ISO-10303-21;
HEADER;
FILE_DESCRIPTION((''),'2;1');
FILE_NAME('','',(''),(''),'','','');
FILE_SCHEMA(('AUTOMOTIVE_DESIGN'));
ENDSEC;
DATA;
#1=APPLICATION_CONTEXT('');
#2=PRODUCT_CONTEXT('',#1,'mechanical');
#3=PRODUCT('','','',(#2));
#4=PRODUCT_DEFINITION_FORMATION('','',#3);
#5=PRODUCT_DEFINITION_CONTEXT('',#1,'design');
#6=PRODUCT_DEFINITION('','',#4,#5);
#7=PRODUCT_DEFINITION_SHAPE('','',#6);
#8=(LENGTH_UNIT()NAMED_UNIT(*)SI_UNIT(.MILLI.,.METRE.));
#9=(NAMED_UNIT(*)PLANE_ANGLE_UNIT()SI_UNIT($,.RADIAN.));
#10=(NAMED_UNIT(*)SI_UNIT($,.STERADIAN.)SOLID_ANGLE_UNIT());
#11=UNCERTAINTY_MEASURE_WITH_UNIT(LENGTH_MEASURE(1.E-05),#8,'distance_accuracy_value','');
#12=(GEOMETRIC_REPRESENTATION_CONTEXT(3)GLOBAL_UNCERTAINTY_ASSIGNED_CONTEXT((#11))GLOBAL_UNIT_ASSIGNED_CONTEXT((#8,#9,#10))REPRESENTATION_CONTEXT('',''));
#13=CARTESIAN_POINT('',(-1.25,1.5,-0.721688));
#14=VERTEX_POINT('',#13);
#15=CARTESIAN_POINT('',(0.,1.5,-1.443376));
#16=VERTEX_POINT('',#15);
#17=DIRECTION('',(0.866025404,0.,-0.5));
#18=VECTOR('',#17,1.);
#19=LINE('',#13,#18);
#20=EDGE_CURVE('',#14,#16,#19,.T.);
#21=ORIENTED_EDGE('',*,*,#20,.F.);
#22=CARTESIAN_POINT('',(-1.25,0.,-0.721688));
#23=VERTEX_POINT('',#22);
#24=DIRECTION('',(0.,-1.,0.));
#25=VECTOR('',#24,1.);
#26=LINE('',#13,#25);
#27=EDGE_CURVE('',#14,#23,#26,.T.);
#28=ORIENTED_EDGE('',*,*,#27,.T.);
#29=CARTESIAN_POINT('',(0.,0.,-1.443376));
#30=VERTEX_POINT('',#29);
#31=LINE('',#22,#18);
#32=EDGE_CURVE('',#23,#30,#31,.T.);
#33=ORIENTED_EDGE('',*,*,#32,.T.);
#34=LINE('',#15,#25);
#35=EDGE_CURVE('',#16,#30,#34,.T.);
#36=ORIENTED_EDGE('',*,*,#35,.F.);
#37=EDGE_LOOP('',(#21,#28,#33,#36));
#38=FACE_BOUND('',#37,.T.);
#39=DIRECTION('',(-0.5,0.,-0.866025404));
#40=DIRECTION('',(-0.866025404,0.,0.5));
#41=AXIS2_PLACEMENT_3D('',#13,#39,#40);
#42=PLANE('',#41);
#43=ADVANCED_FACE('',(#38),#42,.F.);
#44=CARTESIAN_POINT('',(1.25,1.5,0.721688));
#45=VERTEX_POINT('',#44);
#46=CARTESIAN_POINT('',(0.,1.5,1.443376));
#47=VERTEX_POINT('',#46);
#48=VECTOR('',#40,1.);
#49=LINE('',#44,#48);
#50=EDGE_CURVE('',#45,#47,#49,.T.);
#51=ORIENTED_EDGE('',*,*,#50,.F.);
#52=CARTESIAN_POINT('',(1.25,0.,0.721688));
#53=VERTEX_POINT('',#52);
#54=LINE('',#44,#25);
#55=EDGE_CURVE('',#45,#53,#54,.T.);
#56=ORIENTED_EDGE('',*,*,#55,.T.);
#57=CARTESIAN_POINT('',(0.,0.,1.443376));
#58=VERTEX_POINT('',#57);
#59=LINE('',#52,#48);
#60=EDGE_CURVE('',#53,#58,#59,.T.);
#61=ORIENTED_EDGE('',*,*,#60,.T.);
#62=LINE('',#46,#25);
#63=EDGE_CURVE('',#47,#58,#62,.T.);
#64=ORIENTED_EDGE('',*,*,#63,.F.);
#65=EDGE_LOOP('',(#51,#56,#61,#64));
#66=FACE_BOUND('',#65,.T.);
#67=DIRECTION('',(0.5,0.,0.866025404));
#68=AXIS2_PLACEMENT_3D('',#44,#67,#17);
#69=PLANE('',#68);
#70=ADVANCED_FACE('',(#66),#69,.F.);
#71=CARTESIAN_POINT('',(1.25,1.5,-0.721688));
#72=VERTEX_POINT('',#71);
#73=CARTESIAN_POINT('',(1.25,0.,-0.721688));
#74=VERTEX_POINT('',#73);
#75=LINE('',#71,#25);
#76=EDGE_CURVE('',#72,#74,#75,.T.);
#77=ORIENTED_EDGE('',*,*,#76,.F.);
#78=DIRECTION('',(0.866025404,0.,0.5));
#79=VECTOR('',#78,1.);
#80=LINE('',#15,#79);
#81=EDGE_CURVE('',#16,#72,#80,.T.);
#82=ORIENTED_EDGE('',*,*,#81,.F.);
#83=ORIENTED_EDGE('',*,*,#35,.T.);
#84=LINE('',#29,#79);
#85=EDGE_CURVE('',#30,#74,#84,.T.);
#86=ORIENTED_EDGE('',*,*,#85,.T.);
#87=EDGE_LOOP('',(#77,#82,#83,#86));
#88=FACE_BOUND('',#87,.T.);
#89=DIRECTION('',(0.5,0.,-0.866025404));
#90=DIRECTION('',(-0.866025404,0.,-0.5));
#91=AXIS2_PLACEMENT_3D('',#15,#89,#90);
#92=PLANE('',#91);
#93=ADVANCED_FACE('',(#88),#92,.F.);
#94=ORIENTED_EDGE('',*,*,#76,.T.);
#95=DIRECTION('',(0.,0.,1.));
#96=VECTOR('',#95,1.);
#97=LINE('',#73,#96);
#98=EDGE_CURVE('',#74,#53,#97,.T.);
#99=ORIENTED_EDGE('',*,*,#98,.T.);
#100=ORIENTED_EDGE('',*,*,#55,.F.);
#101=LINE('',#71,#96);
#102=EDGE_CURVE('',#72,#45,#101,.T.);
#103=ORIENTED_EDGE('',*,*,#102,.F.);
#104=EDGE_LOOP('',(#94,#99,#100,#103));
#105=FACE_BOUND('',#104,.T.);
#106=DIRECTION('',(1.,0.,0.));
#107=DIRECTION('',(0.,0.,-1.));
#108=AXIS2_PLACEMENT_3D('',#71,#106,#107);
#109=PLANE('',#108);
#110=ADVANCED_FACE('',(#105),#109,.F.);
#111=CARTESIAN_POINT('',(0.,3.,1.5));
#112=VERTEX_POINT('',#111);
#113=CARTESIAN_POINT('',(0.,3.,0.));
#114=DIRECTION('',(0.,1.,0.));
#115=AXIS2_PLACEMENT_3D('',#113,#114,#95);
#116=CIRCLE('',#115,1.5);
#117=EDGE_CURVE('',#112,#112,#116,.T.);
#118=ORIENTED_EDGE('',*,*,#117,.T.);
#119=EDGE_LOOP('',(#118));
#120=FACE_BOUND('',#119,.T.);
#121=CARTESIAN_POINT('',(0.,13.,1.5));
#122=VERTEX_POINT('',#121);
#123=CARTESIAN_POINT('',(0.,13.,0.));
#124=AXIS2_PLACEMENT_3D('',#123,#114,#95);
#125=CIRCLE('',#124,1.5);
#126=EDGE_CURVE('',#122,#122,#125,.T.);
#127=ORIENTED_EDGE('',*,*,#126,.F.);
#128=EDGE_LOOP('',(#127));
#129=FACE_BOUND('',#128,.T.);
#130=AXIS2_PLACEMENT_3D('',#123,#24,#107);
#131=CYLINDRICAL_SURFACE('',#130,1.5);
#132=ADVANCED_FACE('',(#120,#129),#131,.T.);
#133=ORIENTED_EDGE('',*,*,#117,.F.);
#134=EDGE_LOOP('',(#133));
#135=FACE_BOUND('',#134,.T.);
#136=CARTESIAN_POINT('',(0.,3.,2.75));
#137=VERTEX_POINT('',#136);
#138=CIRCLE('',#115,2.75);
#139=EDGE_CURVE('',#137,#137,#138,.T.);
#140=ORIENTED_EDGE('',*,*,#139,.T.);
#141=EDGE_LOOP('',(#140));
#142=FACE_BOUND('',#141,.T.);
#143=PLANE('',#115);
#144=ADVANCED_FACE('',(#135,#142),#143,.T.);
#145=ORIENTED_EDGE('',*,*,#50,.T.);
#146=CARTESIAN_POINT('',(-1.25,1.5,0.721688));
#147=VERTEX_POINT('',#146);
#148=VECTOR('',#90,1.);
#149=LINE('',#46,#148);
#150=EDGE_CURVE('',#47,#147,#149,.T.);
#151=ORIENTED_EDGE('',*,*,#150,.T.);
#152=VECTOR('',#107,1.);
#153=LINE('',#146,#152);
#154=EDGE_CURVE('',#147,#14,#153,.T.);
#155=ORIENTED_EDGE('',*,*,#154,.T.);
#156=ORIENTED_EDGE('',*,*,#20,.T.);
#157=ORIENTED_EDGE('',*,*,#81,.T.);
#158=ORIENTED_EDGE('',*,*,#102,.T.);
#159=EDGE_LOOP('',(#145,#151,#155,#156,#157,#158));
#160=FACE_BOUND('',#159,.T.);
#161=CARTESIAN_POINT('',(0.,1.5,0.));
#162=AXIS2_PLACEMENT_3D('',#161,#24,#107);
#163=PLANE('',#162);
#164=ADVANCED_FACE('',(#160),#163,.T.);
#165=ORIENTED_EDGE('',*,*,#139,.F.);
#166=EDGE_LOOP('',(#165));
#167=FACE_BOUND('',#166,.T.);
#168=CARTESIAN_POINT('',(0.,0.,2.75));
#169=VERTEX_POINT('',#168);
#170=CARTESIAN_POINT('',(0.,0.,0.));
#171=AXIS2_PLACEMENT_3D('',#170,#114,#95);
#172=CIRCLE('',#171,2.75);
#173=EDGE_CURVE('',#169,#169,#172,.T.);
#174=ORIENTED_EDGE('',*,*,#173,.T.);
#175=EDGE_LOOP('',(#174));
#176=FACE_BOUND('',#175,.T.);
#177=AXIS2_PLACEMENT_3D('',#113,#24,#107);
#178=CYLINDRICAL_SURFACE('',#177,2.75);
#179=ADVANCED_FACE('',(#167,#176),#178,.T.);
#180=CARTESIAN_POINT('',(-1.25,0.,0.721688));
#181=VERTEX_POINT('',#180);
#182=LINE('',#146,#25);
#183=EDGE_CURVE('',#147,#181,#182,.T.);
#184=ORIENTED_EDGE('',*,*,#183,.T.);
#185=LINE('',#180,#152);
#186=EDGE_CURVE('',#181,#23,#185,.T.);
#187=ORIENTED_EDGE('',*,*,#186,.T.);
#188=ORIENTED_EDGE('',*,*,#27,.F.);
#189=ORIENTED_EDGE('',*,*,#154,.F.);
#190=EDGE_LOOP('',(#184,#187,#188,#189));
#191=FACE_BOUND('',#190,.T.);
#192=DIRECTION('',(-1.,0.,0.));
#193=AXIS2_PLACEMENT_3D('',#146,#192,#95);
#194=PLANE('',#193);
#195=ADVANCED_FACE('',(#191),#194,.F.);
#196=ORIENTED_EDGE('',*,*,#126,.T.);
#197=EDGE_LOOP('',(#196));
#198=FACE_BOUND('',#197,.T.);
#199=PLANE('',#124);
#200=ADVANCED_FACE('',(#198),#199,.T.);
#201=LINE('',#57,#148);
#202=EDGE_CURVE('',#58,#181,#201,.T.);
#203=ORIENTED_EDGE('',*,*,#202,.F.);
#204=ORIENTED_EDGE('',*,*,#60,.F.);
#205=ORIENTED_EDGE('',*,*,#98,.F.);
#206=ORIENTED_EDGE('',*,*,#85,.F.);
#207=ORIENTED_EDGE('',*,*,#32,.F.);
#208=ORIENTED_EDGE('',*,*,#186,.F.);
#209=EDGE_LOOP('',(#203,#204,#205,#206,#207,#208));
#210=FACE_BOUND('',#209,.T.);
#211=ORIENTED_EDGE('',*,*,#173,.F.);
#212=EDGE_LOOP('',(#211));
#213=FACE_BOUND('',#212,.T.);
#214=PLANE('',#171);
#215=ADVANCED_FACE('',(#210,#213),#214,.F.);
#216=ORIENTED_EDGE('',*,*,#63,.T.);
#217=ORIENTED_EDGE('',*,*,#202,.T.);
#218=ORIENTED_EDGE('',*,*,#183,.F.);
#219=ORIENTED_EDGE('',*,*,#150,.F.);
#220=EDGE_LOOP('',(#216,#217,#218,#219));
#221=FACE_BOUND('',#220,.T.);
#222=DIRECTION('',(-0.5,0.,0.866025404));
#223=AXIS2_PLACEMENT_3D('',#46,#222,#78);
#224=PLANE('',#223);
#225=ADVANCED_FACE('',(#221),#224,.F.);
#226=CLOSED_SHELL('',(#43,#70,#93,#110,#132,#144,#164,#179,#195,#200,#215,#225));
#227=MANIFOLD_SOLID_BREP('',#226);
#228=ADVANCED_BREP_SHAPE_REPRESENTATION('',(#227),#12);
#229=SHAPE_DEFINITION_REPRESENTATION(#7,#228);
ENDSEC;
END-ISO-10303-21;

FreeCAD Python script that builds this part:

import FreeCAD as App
import Part
import Sketcher

V = App.Vector
Q = App.Units.Quantity


def add_polygon(sketch, points):
    """Adds a closed chain of lines whose ends are joined by coincident constraints."""
    first, n = sketch.GeometryCount, len(points)
    for a, b in zip(points, points[1:] + points[:1]):
        sketch.addGeometry(Part.LineSegment(App.Vector(*a, 0), App.Vector(*b, 0)), False)
    for i in range(n):
        sketch.addConstraint(Sketcher.Constraint("Coincident", first + i, 2, first + (i + 1) % n, 1))

doc = App.newDocument("Part")
body = doc.addObject("PartDesign::Body", "Body")

sketch1 = body.newObject("Sketcher::SketchObject", "Sketch")
sketch1.AttachmentSupport = (doc.getObject("XZ_Plane"), [""])
sketch1.MapMode = "FlatFace"
sketch1.addGeometry(Part.Circle(V(0, 0, 0), V(0, 0, 1), 2.8), False)
sketch1.addConstraint([
    Sketcher.Constraint("Coincident", 0, 3, -1, 1),
    Sketcher.Constraint("Diameter", 0, 5.5),
])
pad1 = body.newObject("PartDesign::Pad", "Pad")
pad1.Profile = sketch1
pad1.Length = 3
pad1.Reversed = True

sketch2 = body.newObject("Sketcher::SketchObject", "Sketch001")
sketch2.AttachmentSupport = (doc.getObject("XZ_Plane"), [""])
sketch2.MapMode = "FlatFace"
sketch2.AttachmentOffset = App.Placement(V(0, 0, -3), App.Rotation())
sketch2.addGeometry(Part.Circle(V(0, 0, 0), V(0, 0, 1), 1.5), False)
sketch2.addConstraint([
    Sketcher.Constraint("Coincident", 0, 3, -1, 1),
    Sketcher.Constraint("Diameter", 0, 3.0),
])
pad2 = body.newObject("PartDesign::Pad", "Pad001")
pad2.Profile = sketch2
pad2.Length = 10
pad2.Reversed = True

sketch3 = body.newObject("Sketcher::SketchObject", "Sketch002")
sketch3.AttachmentSupport = (doc.getObject("XZ_Plane"), [""])
sketch3.MapMode = "FlatFace"
add_polygon(sketch3, [(0, 1.4), (-1.2, 0.7), (-1.2, -0.7), (0, -1.4), (1.2, -0.7), (1.2, 0.7)])
sketch3.addConstraint([
    Sketcher.Constraint("Vertical", 1),
    Sketcher.Constraint("Vertical", 4),
    Sketcher.Constraint("Symmetric", 0, 2, 3, 2, -1, 1),
    Sketcher.Constraint("Symmetric", 2, 2, 5, 2, -1, 1),
    Sketcher.Constraint("PointOnObject", 2, 2, -2),
    Sketcher.Constraint("Parallel", 2, 5),
    Sketcher.Constraint("Horizontal", 1, 2, 3, 2),
    Sketcher.Constraint("Angle", 0, Q("-150 deg")),
    Sketcher.Constraint("DistanceX", 1, 2, 3, 2, 2.5),
    Sketcher.Constraint("DistanceY", 1, 2, 1, 1, 1.443376),
])
pocket1 = body.newObject("PartDesign::Pocket", "Pocket")
pocket1.Profile = sketch3
pocket1.Length = 1.5

doc.recompute()
